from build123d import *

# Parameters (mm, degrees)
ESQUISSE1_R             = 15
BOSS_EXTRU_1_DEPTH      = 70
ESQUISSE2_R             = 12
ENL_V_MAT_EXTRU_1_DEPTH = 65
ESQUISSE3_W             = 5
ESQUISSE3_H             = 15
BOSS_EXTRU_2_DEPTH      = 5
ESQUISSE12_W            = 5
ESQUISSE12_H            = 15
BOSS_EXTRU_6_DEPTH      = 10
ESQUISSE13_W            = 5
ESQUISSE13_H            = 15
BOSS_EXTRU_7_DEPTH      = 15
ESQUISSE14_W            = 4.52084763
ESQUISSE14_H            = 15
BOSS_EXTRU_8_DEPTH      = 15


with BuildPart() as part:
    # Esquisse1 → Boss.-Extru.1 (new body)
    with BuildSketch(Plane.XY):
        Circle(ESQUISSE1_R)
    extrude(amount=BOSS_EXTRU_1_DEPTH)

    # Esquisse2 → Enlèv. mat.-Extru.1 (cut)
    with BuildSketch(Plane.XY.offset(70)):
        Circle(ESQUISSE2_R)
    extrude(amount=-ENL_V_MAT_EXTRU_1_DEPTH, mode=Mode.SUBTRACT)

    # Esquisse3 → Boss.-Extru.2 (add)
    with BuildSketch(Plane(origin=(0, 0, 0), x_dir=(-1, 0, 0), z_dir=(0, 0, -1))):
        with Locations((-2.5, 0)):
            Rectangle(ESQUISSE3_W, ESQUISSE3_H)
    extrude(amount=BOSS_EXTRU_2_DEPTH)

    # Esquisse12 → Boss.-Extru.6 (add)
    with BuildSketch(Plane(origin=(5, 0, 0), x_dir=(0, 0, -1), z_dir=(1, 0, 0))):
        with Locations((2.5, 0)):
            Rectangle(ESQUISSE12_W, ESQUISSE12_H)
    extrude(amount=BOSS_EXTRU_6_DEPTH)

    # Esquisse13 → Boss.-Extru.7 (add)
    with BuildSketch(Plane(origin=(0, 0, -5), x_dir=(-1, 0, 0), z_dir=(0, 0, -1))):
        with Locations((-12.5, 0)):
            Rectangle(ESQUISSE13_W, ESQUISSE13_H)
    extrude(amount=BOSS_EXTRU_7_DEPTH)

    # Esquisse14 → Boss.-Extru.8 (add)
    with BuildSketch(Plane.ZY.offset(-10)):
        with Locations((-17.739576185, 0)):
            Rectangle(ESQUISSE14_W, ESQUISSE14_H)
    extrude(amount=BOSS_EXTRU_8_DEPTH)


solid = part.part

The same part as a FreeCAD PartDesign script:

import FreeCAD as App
import Part
import Sketcher
Q = App.Units.Quantity

doc = App.newDocument("Part")
body = doc.addObject("PartDesign::Body", "Body")

# Sketch on XY plane
sketch1 = body.newObject("Sketcher::SketchObject", "Sketch")
sketch1.AttachmentSupport = (doc.getObject("XY_Plane"), [""])
sketch1.MapMode = "FlatFace"
sketch1.addGeometry(Part.Circle(App.Vector(0, 0, 0), App.Vector(0, 0, 1), 15), False)
sketch1.addConstraint([
    Sketcher.Constraint("Coincident", 0, 3, -1, 1),
    Sketcher.Constraint("Diameter", 0, Q("30 mm")),
])
pad1 = body.newObject("PartDesign::Pad", "Pad")
pad1.Profile = sketch1
pad1.Length = 70

# Sketch on XY plane
sketch2 = body.newObject("Sketcher::SketchObject", "Sketch001")
sketch2.AttachmentSupport = (doc.getObject("XY_Plane"), [""])
sketch2.MapMode = "FlatFace"
sketch2.AttachmentOffset = App.Placement(App.Vector(0, 0, 70), App.Rotation())
sketch2.addGeometry(Part.Circle(App.Vector(0, 0, 0), App.Vector(0, 0, 1), 12), False)
sketch2.addConstraint([
    Sketcher.Constraint("Coincident", 0, 3, -1, 1),
    Sketcher.Constraint("Diameter", 0, Q("24 mm")),
])
pocket1 = body.newObject("PartDesign::Pocket", "Pocket")
pocket1.Profile = sketch2
pocket1.Length = 65

# Sketch on XY plane
sketch3 = body.newObject("Sketcher::SketchObject", "Sketch002")
sketch3.AttachmentSupport = (doc.getObject("XY_Plane"), [""])
sketch3.MapMode = "FlatFace"
sketch3.addGeometry([
    Part.LineSegment(App.Vector(5, 8, 0), App.Vector(5, -8, 0)),
    Part.LineSegment(App.Vector(5, -8, 0), App.Vector(0, -8, 0)),
    Part.LineSegment(App.Vector(0, -8, 0), App.Vector(0, 8, 0)),
    Part.LineSegment(App.Vector(0, 8, 0), App.Vector(5, 8, 0)),
], False)
sketch3.addConstraint([
    Sketcher.Constraint("Coincident", 0, 2, 1, 1),
    Sketcher.Constraint("Coincident", 1, 2, 2, 1),
    Sketcher.Constraint("Coincident", 2, 2, 3, 1),
    Sketcher.Constraint("Coincident", 3, 2, 0, 1),
    Sketcher.Constraint("Vertical", 0),
    Sketcher.Constraint("Horizontal", 1),
    Sketcher.Constraint("Vertical", 2),
    Sketcher.Constraint("Horizontal", 3),
    Sketcher.Constraint("Symmetric", 1, 2, 2, 2, -1, 1),
    Sketcher.Constraint("DistanceX", 1, 2, 1, 1, Q("5 mm")),
    Sketcher.Constraint("DistanceY", 0, 2, 0, 1, Q("15 mm")),
])
pad2 = body.newObject("PartDesign::Pad", "Pad001")
pad2.Profile = sketch3
pad2.Length = 5
pad2.Reversed = True

# Sketch on YZ plane
sketch4 = body.newObject("Sketcher::SketchObject", "Sketch003")
sketch4.AttachmentSupport = (doc.getObject("YZ_Plane"), [""])
sketch4.MapMode = "FlatFace"
sketch4.AttachmentOffset = App.Placement(App.Vector(0, 0, 5), App.Rotation())
sketch4.addGeometry([
    Part.LineSegment(App.Vector(8, 0, 0), App.Vector(-8, 0, 0)),
    Part.LineSegment(App.Vector(-8, 0, 0), App.Vector(-8, -5, 0)),
    Part.LineSegment(App.Vector(-8, -5, 0), App.Vector(8, -5, 0)),
    Part.LineSegment(App.Vector(8, -5, 0), App.Vector(8, 0, 0)),
], False)
sketch4.addConstraint([
    Sketcher.Constraint("Coincident", 0, 2, 1, 1),
    Sketcher.Constraint("Coincident", 1, 2, 2, 1),
    Sketcher.Constraint("Coincident", 2, 2, 3, 1),
    Sketcher.Constraint("Coincident", 3, 2, 0, 1),
    Sketcher.Constraint("Horizontal", 0),
    Sketcher.Constraint("Vertical", 1),
    Sketcher.Constraint("Horizontal", 2),
    Sketcher.Constraint("Vertical", 3),
    Sketcher.Constraint("Symmetric", 0, 2, 3, 2, -1, 1),
    Sketcher.Constraint("DistanceX", 0, 2, 0, 1, Q("15 mm")),
    Sketcher.Constraint("DistanceY", 1, 2, 1, 1, Q("5 mm")),
])
pad3 = body.newObject("PartDesign::Pad", "Pad002")
pad3.Profile = sketch4
pad3.Length = 10

# Sketch on XY plane
sketch5 = body.newObject("Sketcher::SketchObject", "Sketch004")
sketch5.AttachmentSupport = (doc.getObject("XY_Plane"), [""])
sketch5.MapMode = "FlatFace"
sketch5.AttachmentOffset = App.Placement(App.Vector(0, 0, -5), App.Rotation())
sketch5.addGeometry([
    Part.LineSegment(App.Vector(15, 8, 0), App.Vector(15, -8, 0)),
    Part.LineSegment(App.Vector(15, -8, 0), App.Vector(10, -8, 0)),
    Part.LineSegment(App.Vector(10, -8, 0), App.Vector(10, 8, 0)),
    Part.LineSegment(App.Vector(10, 8, 0), App.Vector(15, 8, 0)),
], False)
sketch5.addConstraint([
    Sketcher.Constraint("Coincident", 0, 2, 1, 1),
    Sketcher.Constraint("Coincident", 1, 2, 2, 1),
    Sketcher.Constraint("Coincident", 2, 2, 3, 1),
    Sketcher.Constraint("Coincident", 3, 2, 0, 1),
    Sketcher.Constraint("Vertical", 0),
    Sketcher.Constraint("Horizontal", 1),
    Sketcher.Constraint("Vertical", 2),
    Sketcher.Constraint("Horizontal", 3),
    Sketcher.Constraint("DistanceX", 1, 2, 1, 1, Q("5 mm")),
    Sketcher.Constraint("DistanceY", 0, 2, 0, 1, Q("15 mm")),
    Sketcher.Constraint("DistanceX", -1, 1, 0, 2, Q("15 mm")),
    Sketcher.Constraint("DistanceY", 0, 2, -1, 1, Q("7.5 mm")),
])
pad4 = body.newObject("PartDesign::Pad", "Pad003")
pad4.Profile = sketch5
pad4.Length = 15
pad4.Reversed = True

# Sketch on YZ plane
sketch6 = body.newObject("Sketcher::SketchObject", "Sketch005")
sketch6.AttachmentSupport = (doc.getObject("YZ_Plane"), [""])
sketch6.MapMode = "FlatFace"
sketch6.AttachmentOffset = App.Placement(App.Vector(0, 0, 10), App.Rotation())
sketch6.addGeometry([
    Part.LineSegment(App.Vector(7.5, -20, 0), App.Vector(-7.5, -20, 0)),
    Part.LineSegment(App.Vector(-7.5, -20, 0), App.Vector(-7.5, -15.5, 0)),
    Part.LineSegment(App.Vector(-7.5, -15.5, 0), App.Vector(7.5, -15.5, 0)),
    Part.LineSegment(App.Vector(7.5, -15.5, 0), App.Vector(7.5, -20, 0)),
], False)
sketch6.addConstraint([
    Sketcher.Constraint("Coincident", 0, 2, 1, 1),
    Sketcher.Constraint("Coincident", 1, 2, 2, 1),
    Sketcher.Constraint("Coincident", 2, 2, 3, 1),
    Sketcher.Constraint("Coincident", 3, 2, 0, 1),
    Sketcher.Constraint("Horizontal", 0),
    Sketcher.Constraint("Vertical", 1),
    Sketcher.Constraint("Horizontal", 2),
    Sketcher.Constraint("Vertical", 3),
    Sketcher.Constraint("DistanceX", 0, 2, 0, 1, Q("15 mm")),
    Sketcher.Constraint("DistanceY", 0, 2, -1, 1, Q("20 mm")),
    Sketcher.Constraint("DistanceX", 0, 2, -1, 1, Q("7.5 mm")),
    Sketcher.Constraint("DistanceY", 1, 1, 1, 2, Q("4.520848 mm")),
])
pad5 = body.newObject("PartDesign::Pad", "Pad004")
pad5.Profile = sketch6
pad5.Length = 15
pad5.Reversed = True

doc.recompute()
